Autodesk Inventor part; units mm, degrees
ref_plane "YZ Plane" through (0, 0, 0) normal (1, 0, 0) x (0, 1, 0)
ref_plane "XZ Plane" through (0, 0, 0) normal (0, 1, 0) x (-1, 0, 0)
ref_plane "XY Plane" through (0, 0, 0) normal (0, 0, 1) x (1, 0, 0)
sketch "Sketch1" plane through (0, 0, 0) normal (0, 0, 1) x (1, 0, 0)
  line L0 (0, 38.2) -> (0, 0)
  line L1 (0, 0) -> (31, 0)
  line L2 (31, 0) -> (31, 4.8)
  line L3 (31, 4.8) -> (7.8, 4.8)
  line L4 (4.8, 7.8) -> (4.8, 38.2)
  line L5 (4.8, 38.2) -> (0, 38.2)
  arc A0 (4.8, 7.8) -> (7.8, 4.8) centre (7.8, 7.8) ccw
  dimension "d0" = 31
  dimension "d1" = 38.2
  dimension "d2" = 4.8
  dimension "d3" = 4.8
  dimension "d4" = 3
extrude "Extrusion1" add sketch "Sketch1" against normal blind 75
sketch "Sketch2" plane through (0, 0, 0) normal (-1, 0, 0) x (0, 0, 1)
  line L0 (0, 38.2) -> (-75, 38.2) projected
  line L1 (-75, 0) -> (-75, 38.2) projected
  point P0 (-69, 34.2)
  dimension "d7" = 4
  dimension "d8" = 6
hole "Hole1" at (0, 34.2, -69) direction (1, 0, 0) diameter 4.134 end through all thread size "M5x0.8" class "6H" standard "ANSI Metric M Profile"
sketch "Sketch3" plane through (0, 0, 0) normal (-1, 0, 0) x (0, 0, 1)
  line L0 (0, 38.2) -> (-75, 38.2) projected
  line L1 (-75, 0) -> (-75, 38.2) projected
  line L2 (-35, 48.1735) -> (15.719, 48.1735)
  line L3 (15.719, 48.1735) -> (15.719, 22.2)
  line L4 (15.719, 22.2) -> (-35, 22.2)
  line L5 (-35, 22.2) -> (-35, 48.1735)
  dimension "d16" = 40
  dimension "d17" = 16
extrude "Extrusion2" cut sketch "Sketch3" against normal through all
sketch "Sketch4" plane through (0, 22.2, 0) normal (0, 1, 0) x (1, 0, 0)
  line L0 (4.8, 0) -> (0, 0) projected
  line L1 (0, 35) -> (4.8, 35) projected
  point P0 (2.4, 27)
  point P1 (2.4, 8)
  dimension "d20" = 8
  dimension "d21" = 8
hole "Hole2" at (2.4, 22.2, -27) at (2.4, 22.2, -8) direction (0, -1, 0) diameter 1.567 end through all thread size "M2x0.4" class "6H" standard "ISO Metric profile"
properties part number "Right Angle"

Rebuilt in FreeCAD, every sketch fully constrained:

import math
import FreeCAD as App
import Part
import Sketcher
Q = App.Units.Quantity


def add_polygon(sketch, points):
    """Adds a closed chain of lines whose ends are joined by coincident constraints."""
    first, n = sketch.GeometryCount, len(points)
    for a, b in zip(points, points[1:] + points[:1]):
        sketch.addGeometry(Part.LineSegment(App.Vector(*a, 0), App.Vector(*b, 0)), False)
    for i in range(n):
        sketch.addConstraint(Sketcher.Constraint("Coincident", first + i, 2, first + (i + 1) % n, 1))

doc = App.newDocument("Part")
body = doc.addObject("PartDesign::Body", "Body")

# Sketch on XY plane
sketch1 = body.newObject("Sketcher::SketchObject", "Sketch")
sketch1.AttachmentSupport = (doc.getObject("XY_Plane"), [""])
sketch1.MapMode = "FlatFace"
sketch1.addGeometry(Part.LineSegment(App.Vector(4.8, 38.2, 0), App.Vector(0, 38.2, 0)), False)
sketch1.addGeometry(Part.LineSegment(App.Vector(0, 38.2, 0), App.Vector(0, 0, 0)), False)
sketch1.addGeometry(Part.LineSegment(App.Vector(0, 0, 0), App.Vector(31, 0, 0)), False)
sketch1.addGeometry(Part.LineSegment(App.Vector(31, 0, 0), App.Vector(31, 4.8, 0)), False)
sketch1.addGeometry(Part.LineSegment(App.Vector(31, 4.8, 0), App.Vector(7.8, 4.8, 0)), False)
sketch1.addGeometry(Part.ArcOfCircle(Part.Circle(App.Vector(7.8, 7.8, 0), App.Vector(0, 0, 1), 3), math.radians(180), math.radians(270)), False)
sketch1.addGeometry(Part.LineSegment(App.Vector(4.8, 7.8, 0), App.Vector(4.8, 38.2, 0)), False)
sketch1.addConstraint(Sketcher.Constraint("Coincident", 0, 2, 1, 1))
sketch1.addConstraint(Sketcher.Constraint("Coincident", 1, 2, 2, 1))
sketch1.addConstraint(Sketcher.Constraint("Coincident", 2, 2, 3, 1))
sketch1.addConstraint(Sketcher.Constraint("Coincident", 3, 2, 4, 1))
sketch1.addConstraint(Sketcher.Constraint("Tangent", 4, 2, 5, 2))
sketch1.addConstraint(Sketcher.Constraint("Tangent", 5, 1, 6, 1))
sketch1.addConstraint(Sketcher.Constraint("Coincident", 6, 2, 0, 1))
sketch1.addConstraint(Sketcher.Constraint("Horizontal", 0))
sketch1.addConstraint(Sketcher.Constraint("Vertical", 1))
sketch1.addConstraint(Sketcher.Constraint("Horizontal", 2))
sketch1.addConstraint(Sketcher.Constraint("Vertical", 3))
sketch1.addConstraint(Sketcher.Constraint("Horizontal", 4))
sketch1.addConstraint(Sketcher.Constraint("Vertical", 6))
sketch1.addConstraint(Sketcher.Constraint("Coincident", 1, 2, -1, 1))
sketch1.addConstraint(Sketcher.Constraint("Equal", 0, 3))
sketch1.addConstraint(Sketcher.Constraint("Radius", 5, Q("3 mm")))
sketch1.addConstraint(Sketcher.Constraint("DistanceX", 2, 1, 2, 2, Q("31 mm")))
sketch1.addConstraint(Sketcher.Constraint("DistanceX", 0, 2, 0, 1, Q("4.8 mm")))
sketch1.addConstraint(Sketcher.Constraint("DistanceY", 1, 2, 1, 1, Q("38.2 mm")))
pad1 = body.newObject("PartDesign::Pad", "Pad")
pad1.Profile = sketch1
pad1.Length = 75
pad1.Reversed = True

# Sketch on YZ plane
sketch2 = body.newObject("Sketcher::SketchObject", "Sketch001")
sketch2.AttachmentSupport = (doc.getObject("YZ_Plane"), [""])
sketch2.MapMode = "FlatFace"
sketch2.addGeometry(Part.Circle(App.Vector(34.2, -69, 0), App.Vector(0, 0, 1), 2.1), False)
sketch2.addConstraint(Sketcher.Constraint("Diameter", 0, Q("4.134 mm")))
sketch2.addConstraint(Sketcher.Constraint("DistanceY", 0, 3, -1, 1, Q("69 mm")))
sketch2.addConstraint(Sketcher.Constraint("DistanceX", -1, 1, 0, 3, Q("34.2 mm")))
doc.recompute()
hole = body.newObject("PartDesign::Hole", "Hole")
hole.Profile = sketch2
hole.ThreadType = "None"
hole.Diameter = 4.134
hole.DepthType = "ThroughAll"
hole.Reversed = True

# Sketch on YZ plane
sketch3 = body.newObject("Sketcher::SketchObject", "Sketch002")
sketch3.AttachmentSupport = (doc.getObject("YZ_Plane"), [""])
sketch3.MapMode = "FlatFace"
add_polygon(sketch3, [(48, 16), (48, -35), (22, -35), (22, 16)])  # lines 0-3
sketch3.addConstraint(Sketcher.Constraint("Vertical", 0))
sketch3.addConstraint(Sketcher.Constraint("Horizontal", 1))
sketch3.addConstraint(Sketcher.Constraint("Vertical", 2))
sketch3.addConstraint(Sketcher.Constraint("Horizontal", 3))
sketch3.addConstraint(Sketcher.Constraint("DistanceY", 0, 2, -1, 1, Q("35 mm")))
sketch3.addConstraint(Sketcher.Constraint("DistanceX", -1, 1, 1, 2, Q("22.2 mm")))
sketch3.addConstraint(Sketcher.Constraint("DistanceY", 0, 2, 0, 1, Q("50.719 mm")))
sketch3.addConstraint(Sketcher.Constraint("DistanceX", 1, 2, 1, 1, Q("25.9735 mm")))
pocket1 = body.newObject("PartDesign::Pocket", "Pocket")
pocket1.Profile = sketch3
pocket1.Type = "ThroughAll"
pocket1.Reversed = True

# Sketch on XZ plane
sketch4 = body.newObject("Sketcher::SketchObject", "Sketch003")
sketch4.AttachmentSupport = (doc.getObject("XZ_Plane"), [""])
sketch4.MapMode = "FlatFace"
sketch4.AttachmentOffset = App.Placement(App.Vector(0, 0, -22.2), App.Rotation())
sketch4.addGeometry(Part.Circle(App.Vector(2.4, -27, 0), App.Vector(0, 0, 1), 0.8), False)
sketch4.addGeometry(Part.Circle(App.Vector(2.4, -8, 0), App.Vector(0, 0, 1), 0.8), False)
sketch4.addConstraint(Sketcher.Constraint("Equal", 0, 1))
sketch4.addConstraint(Sketcher.Constraint("Vertical", 0, 3, 1, 3))
sketch4.addConstraint(Sketcher.Constraint("Diameter", 0, Q("1.567 mm")))
sketch4.addConstraint(Sketcher.Constraint("DistanceY", 0, 3, -1, 1, Q("27 mm")))
sketch4.addConstraint(Sketcher.Constraint("DistanceY", 1, 3, -1, 1, Q("8 mm")))
sketch4.addConstraint(Sketcher.Constraint("DistanceX", -1, 1, 0, 3, Q("2.4 mm")))
doc.recompute()
hole2 = body.newObject("PartDesign::Hole", "Hole001")
hole2.Profile = sketch4
hole2.ThreadType = "None"
hole2.Diameter = 1.567
hole2.DepthType = "ThroughAll"
hole2.Reversed = True

doc.recompute()
